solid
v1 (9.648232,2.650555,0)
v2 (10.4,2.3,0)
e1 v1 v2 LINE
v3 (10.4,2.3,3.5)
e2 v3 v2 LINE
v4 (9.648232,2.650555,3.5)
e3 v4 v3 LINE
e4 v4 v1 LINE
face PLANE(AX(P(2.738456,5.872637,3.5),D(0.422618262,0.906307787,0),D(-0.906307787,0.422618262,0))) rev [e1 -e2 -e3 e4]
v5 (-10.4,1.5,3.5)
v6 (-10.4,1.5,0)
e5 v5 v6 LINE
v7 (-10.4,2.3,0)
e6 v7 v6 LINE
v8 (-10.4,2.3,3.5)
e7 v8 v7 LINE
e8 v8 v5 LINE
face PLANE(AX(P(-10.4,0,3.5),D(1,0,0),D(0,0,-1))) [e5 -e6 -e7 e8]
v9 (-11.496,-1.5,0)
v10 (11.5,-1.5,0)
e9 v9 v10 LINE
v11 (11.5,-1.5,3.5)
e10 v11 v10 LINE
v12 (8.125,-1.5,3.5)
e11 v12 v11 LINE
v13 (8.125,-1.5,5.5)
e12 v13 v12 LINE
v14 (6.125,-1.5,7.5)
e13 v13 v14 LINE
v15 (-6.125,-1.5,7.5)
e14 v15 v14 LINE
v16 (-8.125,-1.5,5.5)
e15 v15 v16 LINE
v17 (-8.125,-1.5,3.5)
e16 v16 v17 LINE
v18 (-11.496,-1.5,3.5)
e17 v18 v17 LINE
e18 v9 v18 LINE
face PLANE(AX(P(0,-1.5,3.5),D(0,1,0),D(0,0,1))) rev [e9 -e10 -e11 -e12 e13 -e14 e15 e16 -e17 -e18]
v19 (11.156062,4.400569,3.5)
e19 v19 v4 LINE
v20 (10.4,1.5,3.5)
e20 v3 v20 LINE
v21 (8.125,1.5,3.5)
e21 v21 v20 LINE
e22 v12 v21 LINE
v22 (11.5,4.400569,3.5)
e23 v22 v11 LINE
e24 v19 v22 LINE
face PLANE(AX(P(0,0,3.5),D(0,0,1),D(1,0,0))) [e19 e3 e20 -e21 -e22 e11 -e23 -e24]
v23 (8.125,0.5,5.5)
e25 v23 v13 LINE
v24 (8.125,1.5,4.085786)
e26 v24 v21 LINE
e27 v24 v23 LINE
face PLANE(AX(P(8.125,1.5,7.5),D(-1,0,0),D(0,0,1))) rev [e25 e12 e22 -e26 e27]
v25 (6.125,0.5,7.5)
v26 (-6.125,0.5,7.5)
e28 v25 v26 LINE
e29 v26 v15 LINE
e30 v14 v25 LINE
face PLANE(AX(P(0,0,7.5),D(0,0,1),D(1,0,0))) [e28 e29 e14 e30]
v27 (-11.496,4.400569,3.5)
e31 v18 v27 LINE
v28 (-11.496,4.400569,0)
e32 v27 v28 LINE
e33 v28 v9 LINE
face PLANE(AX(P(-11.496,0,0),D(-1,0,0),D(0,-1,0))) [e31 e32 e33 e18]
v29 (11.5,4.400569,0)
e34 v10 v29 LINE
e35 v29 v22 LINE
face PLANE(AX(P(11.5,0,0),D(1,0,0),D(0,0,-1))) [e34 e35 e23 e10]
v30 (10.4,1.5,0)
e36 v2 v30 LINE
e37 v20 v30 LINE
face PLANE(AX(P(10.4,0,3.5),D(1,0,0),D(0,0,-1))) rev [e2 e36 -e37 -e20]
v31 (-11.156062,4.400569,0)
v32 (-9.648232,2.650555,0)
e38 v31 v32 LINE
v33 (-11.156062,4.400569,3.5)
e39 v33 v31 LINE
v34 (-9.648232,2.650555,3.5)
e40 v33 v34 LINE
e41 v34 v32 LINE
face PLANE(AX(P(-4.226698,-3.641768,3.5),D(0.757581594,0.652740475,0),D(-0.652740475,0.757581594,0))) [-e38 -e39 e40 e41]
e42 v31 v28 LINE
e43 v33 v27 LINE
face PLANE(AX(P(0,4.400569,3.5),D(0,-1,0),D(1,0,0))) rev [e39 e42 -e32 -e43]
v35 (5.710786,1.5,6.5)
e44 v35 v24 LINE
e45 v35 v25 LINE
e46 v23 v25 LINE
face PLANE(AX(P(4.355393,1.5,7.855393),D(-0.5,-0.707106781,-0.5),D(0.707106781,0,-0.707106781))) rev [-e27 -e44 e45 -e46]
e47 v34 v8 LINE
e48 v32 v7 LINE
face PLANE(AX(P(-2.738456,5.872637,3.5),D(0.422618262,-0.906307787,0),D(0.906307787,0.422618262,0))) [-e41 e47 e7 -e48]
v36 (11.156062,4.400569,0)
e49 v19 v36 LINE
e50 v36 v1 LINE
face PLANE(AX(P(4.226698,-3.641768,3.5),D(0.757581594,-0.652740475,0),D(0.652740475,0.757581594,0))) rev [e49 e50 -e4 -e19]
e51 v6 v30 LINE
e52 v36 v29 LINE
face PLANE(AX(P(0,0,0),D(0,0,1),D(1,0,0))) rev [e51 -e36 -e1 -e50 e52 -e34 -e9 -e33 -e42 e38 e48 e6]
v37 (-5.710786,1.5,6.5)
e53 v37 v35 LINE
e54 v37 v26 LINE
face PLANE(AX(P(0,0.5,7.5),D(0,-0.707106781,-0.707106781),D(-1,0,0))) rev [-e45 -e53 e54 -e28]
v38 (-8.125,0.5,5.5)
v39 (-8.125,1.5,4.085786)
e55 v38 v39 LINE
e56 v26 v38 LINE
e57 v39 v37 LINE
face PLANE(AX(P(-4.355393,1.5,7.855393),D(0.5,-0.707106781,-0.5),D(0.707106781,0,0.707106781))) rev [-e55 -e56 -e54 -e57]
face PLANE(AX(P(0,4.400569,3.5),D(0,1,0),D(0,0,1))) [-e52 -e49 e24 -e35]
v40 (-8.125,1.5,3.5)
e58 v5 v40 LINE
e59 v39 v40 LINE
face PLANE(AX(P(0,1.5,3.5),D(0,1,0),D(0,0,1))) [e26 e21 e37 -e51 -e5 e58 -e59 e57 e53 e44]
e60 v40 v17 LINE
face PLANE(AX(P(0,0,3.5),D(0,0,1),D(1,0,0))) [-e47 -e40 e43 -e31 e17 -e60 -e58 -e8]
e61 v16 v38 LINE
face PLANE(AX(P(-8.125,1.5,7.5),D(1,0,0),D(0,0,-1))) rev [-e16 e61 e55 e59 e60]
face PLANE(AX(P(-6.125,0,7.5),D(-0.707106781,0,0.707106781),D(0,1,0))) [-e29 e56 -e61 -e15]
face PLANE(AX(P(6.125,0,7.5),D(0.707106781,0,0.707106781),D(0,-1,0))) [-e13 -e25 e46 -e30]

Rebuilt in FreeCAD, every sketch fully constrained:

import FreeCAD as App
import Part
import Sketcher

V = App.Vector
Q = App.Units.Quantity


def edges_at(feature, points):
    """Names of the edges that pass closest to the given points."""
    edges = feature.Shape.Edges
    near = lambda p: min(range(len(edges)), key=lambda i: edges[i].distToShape(Part.Vertex(*p))[0])
    return sorted({f"Edge{near(p) + 1}" for p in points})

doc = App.newDocument("Part")
body = doc.addObject("PartDesign::Body", "Body")

# Sketch on XY plane
sketch1 = body.newObject("Sketcher::SketchObject", "Sketch")
sketch1.AttachmentSupport = (doc.getObject("XY_Plane"), [""])
sketch1.MapMode = "FlatFace"
sketch1.addGeometry([
    Part.LineSegment(V(12, 4.4, 0), V(11.2, 4.4, 0)),  # 0
    Part.LineSegment(V(11.2, 4.4, 0), V(9.6, 2.7, 0)),  # 1
    Part.LineSegment(V(9.6, 2.7, 0), V(10.4, 2.3, 0)),  # 2
    Part.LineSegment(V(10.4, 2.3, 0), V(10.4, 1.5, 0)),  # 3
    Part.LineSegment(V(10.4, 1.5, 0), V(-10.4, 1.5, 0)),  # 4
    Part.LineSegment(V(-10.4, 1.5, 0), V(-10.4, 2.3, 0)),  # 5
    Part.LineSegment(V(-10.4, 2.3, 0), V(-9.6, 2.7, 0)),  # 6
    Part.LineSegment(V(-9.6, 2.7, 0), V(-11.2, 4.4, 0)),  # 7
    Part.LineSegment(V(-11.2, 4.4, 0), V(-12, 4.4, 0)),  # 8
    Part.LineSegment(V(-12, 4.4, 0), V(-12, -1.5, 0)),  # 9
    Part.LineSegment(V(-12, -1.5, 0), V(12, -1.5, 0)),  # 10
    Part.LineSegment(V(12, -1.5, 0), V(12, 4.4, 0)),  # 11
], False)
sketch1.addConstraint([
    Sketcher.Constraint("Coincident", 0, 2, 1, 1),
    Sketcher.Constraint("Coincident", 1, 2, 2, 1),
    Sketcher.Constraint("Coincident", 2, 2, 3, 1),
    Sketcher.Constraint("Coincident", 3, 2, 4, 1),
    Sketcher.Constraint("Coincident", 4, 2, 5, 1),
    Sketcher.Constraint("Coincident", 5, 2, 6, 1),
    Sketcher.Constraint("Coincident", 6, 2, 7, 1),
    Sketcher.Constraint("Coincident", 7, 2, 8, 1),
    Sketcher.Constraint("Coincident", 8, 2, 9, 1),
    Sketcher.Constraint("Coincident", 9, 2, 10, 1),
    Sketcher.Constraint("Coincident", 10, 2, 11, 1),
    Sketcher.Constraint("Coincident", 11, 2, 0, 1),
    Sketcher.Constraint("Horizontal", 0),
    Sketcher.Constraint("Vertical", 3),
    Sketcher.Constraint("Horizontal", 4),
    Sketcher.Constraint("Vertical", 5),
    Sketcher.Constraint("Horizontal", 8),
    Sketcher.Constraint("Vertical", 9),
    Sketcher.Constraint("Horizontal", 10),
    Sketcher.Constraint("Vertical", 11),
    Sketcher.Constraint("Symmetric", 2, 2, 5, 2, -2),
    Sketcher.Constraint("Symmetric", 1, 2, 6, 2, -2),
    Sketcher.Constraint("Symmetric", 0, 2, 7, 2, -2),
    Sketcher.Constraint("Angle", 2, Q("-25 deg")),
    Sketcher.Constraint("DistanceX", 4, 2, 4, 1, 20.8),
    Sketcher.Constraint("DistanceY", 3, 2, 3, 1, 0.8),
    Sketcher.Constraint("DistanceX", -1, 1, 10, 2, 12.0),
    Sketcher.Constraint("DistanceY", 9, 2, 4, 2, 3.0),
    Sketcher.Constraint("DistanceY", -1, 1, 2, 2, 2.3),
    Sketcher.Constraint("Distance", 1, 2.31),
    Sketcher.Constraint("DistanceX", 10, 1, 10, 2, 23.996),
    Sketcher.Constraint("DistanceY", 9, 2, 9, 1, 5.900569),
    Sketcher.Constraint("DistanceX", 0, 2, 0, 1, 0.843938),
])
pad1 = body.newObject("PartDesign::Pad", "Pad")
pad1.Profile = sketch1
pad1.Length = 3.5

# Sketch on YZ plane
sketch2 = body.newObject("Sketcher::SketchObject", "Sketch001")
sketch2.AttachmentSupport = (doc.getObject("YZ_Plane"), [""])
sketch2.MapMode = "FlatFace"
sketch2.AttachmentOffset = App.Placement(V(0, 0, 12), App.Rotation())
sketch2.addGeometry([
    Part.LineSegment(V(4.4, 3.5, 0), V(-1.5, 3.5, 0)),
    Part.LineSegment(V(-1.5, 3.5, 0), V(-1.5, 0, 0)),
    Part.LineSegment(V(-1.5, 0, 0), V(4.4, 0, 0)),
    Part.LineSegment(V(4.4, 0, 0), V(4.4, 3.5, 0)),
], False)
sketch2.addConstraint([
    Sketcher.Constraint("Coincident", 0, 2, 1, 1),
    Sketcher.Constraint("Coincident", 1, 2, 2, 1),
    Sketcher.Constraint("Coincident", 2, 2, 3, 1),
    Sketcher.Constraint("Coincident", 3, 2, 0, 1),
    Sketcher.Constraint("Horizontal", 0),
    Sketcher.Constraint("Vertical", 1),
    Sketcher.Constraint("Horizontal", 2),
    Sketcher.Constraint("Vertical", 3),
    Sketcher.Constraint("PointOnObject", 1, 2, -1),
    Sketcher.Constraint("DistanceY", 1, 2, 1, 1, 3.5),
    Sketcher.Constraint("DistanceX", 0, 2, -1, 1, 1.5),
    Sketcher.Constraint("DistanceX", 0, 2, 0, 1, 5.900569),
])
pocket1 = body.newObject("PartDesign::Pocket", "Pocket")
pocket1.Profile = sketch2
pocket1.Length = 0.5

# Sketch on YZ plane
sketch3 = body.newObject("Sketcher::SketchObject", "Sketch002")
sketch3.AttachmentSupport = (doc.getObject("YZ_Plane"), [""])
sketch3.MapMode = "FlatFace"
sketch3.AttachmentOffset = App.Placement(V(0, 0, -11.996), App.Rotation())
sketch3.addGeometry([
    Part.LineSegment(V(4.4, 0, 0), V(-1.5, 0, 0)),
    Part.LineSegment(V(-1.5, 0, 0), V(-1.5, 3.5, 0)),
    Part.LineSegment(V(-1.5, 3.5, 0), V(4.4, 3.5, 0)),
    Part.LineSegment(V(4.4, 3.5, 0), V(4.4, 0, 0)),
], False)
sketch3.addConstraint([
    Sketcher.Constraint("Coincident", 0, 2, 1, 1),
    Sketcher.Constraint("Coincident", 1, 2, 2, 1),
    Sketcher.Constraint("Coincident", 2, 2, 3, 1),
    Sketcher.Constraint("Coincident", 3, 2, 0, 1),
    Sketcher.Constraint("Horizontal", 0),
    Sketcher.Constraint("Vertical", 1),
    Sketcher.Constraint("Horizontal", 2),
    Sketcher.Constraint("Vertical", 3),
    Sketcher.Constraint("PointOnObject", 0, 2, -1),
    Sketcher.Constraint("DistanceY", 1, 1, 1, 2, 3.5),
    Sketcher.Constraint("DistanceX", 0, 2, -1, 1, 1.5),
    Sketcher.Constraint("DistanceX", 0, 2, 0, 1, 5.900569),
])
pocket2 = body.newObject("PartDesign::Pocket", "Pocket001")
pocket2.Profile = sketch3
pocket2.Length = 0.5
pocket2.Reversed = True

# Sketch on XY plane
sketch4 = body.newObject("Sketcher::SketchObject", "Sketch003")
sketch4.AttachmentSupport = (doc.getObject("XY_Plane"), [""])
sketch4.MapMode = "FlatFace"
sketch4.AttachmentOffset = App.Placement(V(0, 0, 3.5), App.Rotation())
sketch4.addGeometry([
    Part.LineSegment(V(-8.1, 1.5, 0), V(-8.1, -1.5, 0)),
    Part.LineSegment(V(-8.1, -1.5, 0), V(8.1, -1.5, 0)),
    Part.LineSegment(V(8.1, -1.5, 0), V(8.1, 1.5, 0)),
    Part.LineSegment(V(8.1, 1.5, 0), V(-8.1, 1.5, 0)),
], False)
sketch4.addConstraint([
    Sketcher.Constraint("Coincident", 0, 2, 1, 1),
    Sketcher.Constraint("Coincident", 1, 2, 2, 1),
    Sketcher.Constraint("Coincident", 2, 2, 3, 1),
    Sketcher.Constraint("Coincident", 3, 2, 0, 1),
    Sketcher.Constraint("Vertical", 0),
    Sketcher.Constraint("Horizontal", 1),
    Sketcher.Constraint("Vertical", 2),
    Sketcher.Constraint("Horizontal", 3),
    Sketcher.Constraint("Symmetric", 0, 2, 2, 2, -1, 1),
    Sketcher.Constraint("DistanceY", 0, 2, 0, 1, 3.0),
    Sketcher.Constraint("DistanceX", 1, 1, 1, 2, 16.25),
])
pad2 = body.newObject("PartDesign::Pad", "Pad001")
pad2.Profile = sketch4
pad2.Length = 4
doc.recompute()

chamfer = body.newObject("PartDesign::Chamfer", "Chamfer")
chamfer.Base = (pad2, edges_at(pad2, [(8.125, 0, 7.5), (-8.125, 0, 7.5)]))
chamfer.Size = 2
doc.recompute()

chamfer2 = body.newObject("PartDesign::Chamfer", "Chamfer001")
chamfer2.Base = (chamfer, edges_at(chamfer, [(0, 1.5, 7.5), (7.125, 1.5, 6.5), (-7.125, 1.5, 6.5)]))
chamfer2.Size = 1

doc.recompute()
